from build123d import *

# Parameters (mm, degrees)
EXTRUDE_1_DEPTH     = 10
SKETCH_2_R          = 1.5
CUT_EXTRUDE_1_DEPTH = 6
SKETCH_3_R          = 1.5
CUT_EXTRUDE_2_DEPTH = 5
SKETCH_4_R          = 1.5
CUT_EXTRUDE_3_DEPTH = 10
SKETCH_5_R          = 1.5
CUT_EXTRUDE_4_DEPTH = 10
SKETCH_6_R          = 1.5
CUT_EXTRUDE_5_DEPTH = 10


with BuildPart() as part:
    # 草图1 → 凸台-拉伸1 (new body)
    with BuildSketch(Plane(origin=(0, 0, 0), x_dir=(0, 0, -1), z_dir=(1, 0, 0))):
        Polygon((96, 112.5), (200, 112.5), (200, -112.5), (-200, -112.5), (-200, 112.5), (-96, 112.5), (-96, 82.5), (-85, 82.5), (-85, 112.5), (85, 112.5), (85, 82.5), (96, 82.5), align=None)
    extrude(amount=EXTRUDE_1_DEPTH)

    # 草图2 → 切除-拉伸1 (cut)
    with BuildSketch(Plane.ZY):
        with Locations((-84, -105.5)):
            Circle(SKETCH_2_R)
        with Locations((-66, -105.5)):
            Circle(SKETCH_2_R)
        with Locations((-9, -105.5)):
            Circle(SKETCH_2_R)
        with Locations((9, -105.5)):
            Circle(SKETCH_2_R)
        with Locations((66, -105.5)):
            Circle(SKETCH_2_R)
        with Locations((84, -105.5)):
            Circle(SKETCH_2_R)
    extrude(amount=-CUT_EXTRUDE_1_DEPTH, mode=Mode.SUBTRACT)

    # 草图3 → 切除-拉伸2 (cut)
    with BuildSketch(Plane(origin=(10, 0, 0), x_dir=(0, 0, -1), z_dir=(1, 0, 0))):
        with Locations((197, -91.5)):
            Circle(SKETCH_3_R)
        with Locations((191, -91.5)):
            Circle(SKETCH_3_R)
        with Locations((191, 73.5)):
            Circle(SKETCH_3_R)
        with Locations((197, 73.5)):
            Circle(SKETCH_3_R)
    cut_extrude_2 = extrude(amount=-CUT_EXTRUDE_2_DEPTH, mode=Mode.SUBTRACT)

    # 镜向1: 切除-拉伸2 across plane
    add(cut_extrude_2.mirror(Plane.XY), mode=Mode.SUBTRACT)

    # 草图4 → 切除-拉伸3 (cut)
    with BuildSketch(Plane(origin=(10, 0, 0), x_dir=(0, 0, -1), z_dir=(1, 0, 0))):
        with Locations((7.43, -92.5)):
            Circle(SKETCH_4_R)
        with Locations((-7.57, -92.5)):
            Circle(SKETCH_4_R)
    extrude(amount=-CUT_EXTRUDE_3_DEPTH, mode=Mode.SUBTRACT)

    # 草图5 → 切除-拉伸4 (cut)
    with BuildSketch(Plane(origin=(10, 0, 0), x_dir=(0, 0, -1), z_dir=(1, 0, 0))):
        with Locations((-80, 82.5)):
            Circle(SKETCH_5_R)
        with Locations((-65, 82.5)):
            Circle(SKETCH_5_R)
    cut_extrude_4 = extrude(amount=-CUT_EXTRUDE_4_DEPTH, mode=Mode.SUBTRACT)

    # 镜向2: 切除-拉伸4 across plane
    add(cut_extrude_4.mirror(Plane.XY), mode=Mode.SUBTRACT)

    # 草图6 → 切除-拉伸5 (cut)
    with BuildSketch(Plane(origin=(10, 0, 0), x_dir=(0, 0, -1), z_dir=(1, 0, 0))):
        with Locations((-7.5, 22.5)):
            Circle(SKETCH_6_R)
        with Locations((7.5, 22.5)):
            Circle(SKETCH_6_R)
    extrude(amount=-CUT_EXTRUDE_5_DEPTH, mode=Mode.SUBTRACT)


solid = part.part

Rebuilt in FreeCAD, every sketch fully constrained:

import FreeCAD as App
import Part
import Sketcher
Q = App.Units.Quantity


def add_polygon(sketch, points):
    """Adds a closed chain of lines whose ends are joined by coincident constraints."""
    first, n = sketch.GeometryCount, len(points)
    for a, b in zip(points, points[1:] + points[:1]):
        sketch.addGeometry(Part.LineSegment(App.Vector(*a, 0), App.Vector(*b, 0)), False)
    for i in range(n):
        sketch.addConstraint(Sketcher.Constraint("Coincident", first + i, 2, first + (i + 1) % n, 1))

doc = App.newDocument("Part")
params = doc.addObject("Spreadsheet::Sheet", "Params")
for row, (alias, value) in enumerate([
    ("sketch1_width", "30 mm"),
    ("sketch1_width2", "225 mm"),
    ("sketch1_height", "104 mm"),
    ("sketch1_height2", "11 mm"),
    ("sketch1_height3", "170 mm"),
    ("pad1_length", "10 mm"),
    ("sketch2_diameter", "3 mm"),
    ("pocket1_length", "6 mm"),
    ("sketch3_diameter", "3 mm"),
    ("pocket2_length", "5 mm"),
    ("sketch4_diameter", "3 mm"),
    ("pocket3_length", "10 mm"),
    ("sketch5_diameter", "3 mm"),
    ("pocket4_length", "10 mm"),
    ("sketch6_diameter", "3 mm"),
    ("pocket5_length", "10 mm"),
], start=1):
    params.set(f"A{row}", alias)
    params.set(f"B{row}", "=" + value)
    params.setAlias(f"B{row}", alias)

body = doc.addObject("PartDesign::Body", "Body")

# Sketch on YZ plane
sketch1 = body.newObject("Sketcher::SketchObject", "Sketch")
sketch1.AttachmentSupport = (doc.getObject("YZ_Plane"), [""])
sketch1.MapMode = "FlatFace"
add_polygon(sketch1, [(112, -200), (112, -96), (82, -96), (82, -85), (112, -85), (112, 85), (82, 85), (82, 96), (112, 96), (112, 200), (-112, 200), (-112, -200)])  # lines 0-11
sketch1.addConstraint(Sketcher.Constraint("Vertical", 0))
sketch1.addConstraint(Sketcher.Constraint("Horizontal", 1))
sketch1.addConstraint(Sketcher.Constraint("Vertical", 2))
sketch1.addConstraint(Sketcher.Constraint("Horizontal", 3))
sketch1.addConstraint(Sketcher.Constraint("Vertical", 4))
sketch1.addConstraint(Sketcher.Constraint("Horizontal", 5))
sketch1.addConstraint(Sketcher.Constraint("Vertical", 6))
sketch1.addConstraint(Sketcher.Constraint("Horizontal", 7))
sketch1.addConstraint(Sketcher.Constraint("Vertical", 8))
sketch1.addConstraint(Sketcher.Constraint("Horizontal", 9))
sketch1.addConstraint(Sketcher.Constraint("Vertical", 10))
sketch1.addConstraint(Sketcher.Constraint("Horizontal", 11))
sketch1.addConstraint(Sketcher.Constraint("Symmetric", 8, 2, 10, 2, -1, 1))
sketch1.addConstraint(Sketcher.Constraint("Symmetric", 2, 2, 5, 2, -1))
sketch1.addConstraint(Sketcher.Constraint("Symmetric", 0, 2, 7, 2, -1))
sketch1.addConstraint(Sketcher.Constraint("Vertical", 0, 2, 3, 2))
sketch1.addConstraint(Sketcher.Constraint("DistanceX", 1, 2, 1, 1, Q("30 mm")))
sketch1.addConstraint(Sketcher.Constraint("DistanceX", 9, 2, 9, 1, Q("225 mm")))
sketch1.addConstraint(Sketcher.Constraint("DistanceY", 0, 1, 0, 2, Q("104 mm")))
sketch1.addConstraint(Sketcher.Constraint("DistanceY", 2, 1, 2, 2, Q("11 mm")))
sketch1.addConstraint(Sketcher.Constraint("DistanceY", 4, 1, 4, 2, Q("170 mm")))
sketch1.setExpression("Constraints[28]", "Params.sketch1_width")
sketch1.setExpression("Constraints[29]", "Params.sketch1_width2")
sketch1.setExpression("Constraints[30]", "Params.sketch1_height")
sketch1.setExpression("Constraints[31]", "Params.sketch1_height2")
sketch1.setExpression("Constraints[32]", "Params.sketch1_height3")
pad1 = body.newObject("PartDesign::Pad", "Pad")
pad1.Profile = sketch1
pad1.setExpression("Length", "Params.pad1_length")

# Sketch on YZ plane
sketch2 = body.newObject("Sketcher::SketchObject", "Sketch001")
sketch2.AttachmentSupport = (doc.getObject("YZ_Plane"), [""])
sketch2.MapMode = "FlatFace"
sketch2.addGeometry(Part.Circle(App.Vector(-105.5, -84, 0), App.Vector(0, 0, 1), 1.5), False)
sketch2.addGeometry(Part.Circle(App.Vector(-105.5, -66, 0), App.Vector(0, 0, 1), 1.5), False)
sketch2.addGeometry(Part.Circle(App.Vector(-105.5, -9, 0), App.Vector(0, 0, 1), 1.5), False)
sketch2.addGeometry(Part.Circle(App.Vector(-105.5, 9, 0), App.Vector(0, 0, 1), 1.5), False)
sketch2.addGeometry(Part.Circle(App.Vector(-105.5, 66, 0), App.Vector(0, 0, 1), 1.5), False)
sketch2.addGeometry(Part.Circle(App.Vector(-105.5, 84, 0), App.Vector(0, 0, 1), 1.5), False)
sketch2.addConstraint(Sketcher.Constraint("Equal", 0, 1))
sketch2.addConstraint(Sketcher.Constraint("Equal", 1, 2))
sketch2.addConstraint(Sketcher.Constraint("Equal", 2, 3))
sketch2.addConstraint(Sketcher.Constraint("Equal", 3, 4))
sketch2.addConstraint(Sketcher.Constraint("Equal", 4, 5))
sketch2.addConstraint(Sketcher.Constraint("Symmetric", 2, 3, 3, 3, -1))
sketch2.addConstraint(Sketcher.Constraint("Symmetric", 1, 3, 4, 3, -1))
sketch2.addConstraint(Sketcher.Constraint("Symmetric", 0, 3, 5, 3, -1))
sketch2.addConstraint(Sketcher.Constraint("Vertical", 0, 3, 1, 3))
sketch2.addConstraint(Sketcher.Constraint("Vertical", 1, 3, 2, 3))
sketch2.addConstraint(Sketcher.Constraint("Diameter", 0, Q("3 mm")))
sketch2.addConstraint(Sketcher.Constraint("DistanceY", 0, 3, -1, 1, Q("84 mm")))
sketch2.addConstraint(Sketcher.Constraint("DistanceY", 1, 3, -1, 1, Q("66 mm")))
sketch2.addConstraint(Sketcher.Constraint("DistanceY", 2, 3, -1, 1, Q("9 mm")))
sketch2.addConstraint(Sketcher.Constraint("DistanceX", 0, 3, -1, 1, Q("105.5 mm")))
sketch2.setExpression("Constraints[10]", "Params.sketch2_diameter")
pocket1 = body.newObject("PartDesign::Pocket", "Pocket")
pocket1.Profile = sketch2
pocket1.setExpression("Length", "Params.pocket1_length")
pocket1.Reversed = True

# Sketch on YZ plane
sketch3 = body.newObject("Sketcher::SketchObject", "Sketch002")
sketch3.AttachmentSupport = (doc.getObject("YZ_Plane"), [""])
sketch3.MapMode = "FlatFace"
sketch3.AttachmentOffset = App.Placement(App.Vector(0, 0, 10), App.Rotation())
sketch3.addGeometry(Part.Circle(App.Vector(-91.5, -197, 0), App.Vector(0, 0, 1), 1.5), False)
sketch3.addGeometry(Part.Circle(App.Vector(-91.5, -191, 0), App.Vector(0, 0, 1), 1.5), False)
sketch3.addGeometry(Part.Circle(App.Vector(73.5, -191, 0), App.Vector(0, 0, 1), 1.5), False)
sketch3.addGeometry(Part.Circle(App.Vector(73.5, -197, 0), App.Vector(0, 0, 1), 1.5), False)
sketch3.addConstraint(Sketcher.Constraint("Equal", 0, 1))
sketch3.addConstraint(Sketcher.Constraint("Equal", 1, 2))
sketch3.addConstraint(Sketcher.Constraint("Equal", 2, 3))
sketch3.addConstraint(Sketcher.Constraint("Horizontal", 1, 3, 2, 3))
sketch3.addConstraint(Sketcher.Constraint("Horizontal", 0, 3, 3, 3))
sketch3.addConstraint(Sketcher.Constraint("Vertical", 0, 3, 1, 3))
sketch3.addConstraint(Sketcher.Constraint("Vertical", 2, 3, 3, 3))
sketch3.addConstraint(Sketcher.Constraint("Diameter", 0, Q("3 mm")))
sketch3.addConstraint(Sketcher.Constraint("DistanceY", 0, 3, -1, 1, Q("197 mm")))
sketch3.addConstraint(Sketcher.Constraint("DistanceY", 1, 3, -1, 1, Q("191 mm")))
sketch3.addConstraint(Sketcher.Constraint("DistanceX", 1, 3, 2, 3, Q("165 mm")))
sketch3.addConstraint(Sketcher.Constraint("DistanceX", 0, 3, -1, 1, Q("91.5 mm")))
sketch3.setExpression("Constraints[7]", "Params.sketch3_diameter")
pocket2 = body.newObject("PartDesign::Pocket", "Pocket001")
pocket2.Profile = sketch3
pocket2.setExpression("Length", "Params.pocket2_length")
doc.recompute()

mirrored = body.newObject("PartDesign::Mirrored", "Mirrored")
mirrored.Originals = [pocket2]
mirrored.MirrorPlane = (doc.getObject("XY_Plane"), [""])
body.Tip = mirrored

# Sketch on YZ plane
sketch4 = body.newObject("Sketcher::SketchObject", "Sketch003")
sketch4.AttachmentSupport = (doc.getObject("YZ_Plane"), [""])
sketch4.MapMode = "FlatFace"
sketch4.AttachmentOffset = App.Placement(App.Vector(0, 0, 10), App.Rotation())
sketch4.addGeometry(Part.Circle(App.Vector(-92.5, -7.4, 0), App.Vector(0, 0, 1), 1.5), False)
sketch4.addGeometry(Part.Circle(App.Vector(-92.5, 7.6, 0), App.Vector(0, 0, 1), 1.5), False)
sketch4.addConstraint(Sketcher.Constraint("Equal", 0, 1))
sketch4.addConstraint(Sketcher.Constraint("Vertical", 0, 3, 1, 3))
sketch4.addConstraint(Sketcher.Constraint("Diameter", 0, Q("3 mm")))
sketch4.addConstraint(Sketcher.Constraint("DistanceY", 0, 3, 1, 3, Q("15 mm")))
sketch4.addConstraint(Sketcher.Constraint("DistanceX", 0, 3, -1, 1, Q("92.5 mm")))
sketch4.addConstraint(Sketcher.Constraint("DistanceY", 0, 3, -1, 1, Q("7.43 mm")))
sketch4.setExpression("Constraints[2]", "Params.sketch4_diameter")
pocket3 = body.newObject("PartDesign::Pocket", "Pocket002")
pocket3.Profile = sketch4
pocket3.setExpression("Length", "Params.pocket3_length")

# Sketch on YZ plane
sketch5 = body.newObject("Sketcher::SketchObject", "Sketch004")
sketch5.AttachmentSupport = (doc.getObject("YZ_Plane"), [""])
sketch5.MapMode = "FlatFace"
sketch5.AttachmentOffset = App.Placement(App.Vector(0, 0, 10), App.Rotation())
sketch5.addGeometry(Part.Circle(App.Vector(82.5, 80, 0), App.Vector(0, 0, 1), 1.5), False)
sketch5.addGeometry(Part.Circle(App.Vector(82.5, 65, 0), App.Vector(0, 0, 1), 1.5), False)
sketch5.addConstraint(Sketcher.Constraint("Equal", 0, 1))
sketch5.addConstraint(Sketcher.Constraint("Vertical", 0, 3, 1, 3))
sketch5.addConstraint(Sketcher.Constraint("Diameter", 0, Q("3 mm")))
sketch5.addConstraint(Sketcher.Constraint("DistanceY", -1, 1, 0, 3, Q("80 mm")))
sketch5.addConstraint(Sketcher.Constraint("DistanceY", -1, 1, 1, 3, Q("65 mm")))
sketch5.addConstraint(Sketcher.Constraint("DistanceX", -1, 1, 0, 3, Q("82.5 mm")))
sketch5.setExpression("Constraints[2]", "Params.sketch5_diameter")
pocket4 = body.newObject("PartDesign::Pocket", "Pocket003")
pocket4.Profile = sketch5
pocket4.setExpression("Length", "Params.pocket4_length")
doc.recompute()

mirrored2 = body.newObject("PartDesign::Mirrored", "Mirrored001")
mirrored2.Originals = [pocket4]
mirrored2.MirrorPlane = (doc.getObject("XY_Plane"), [""])
body.Tip = mirrored2

# Sketch on YZ plane
sketch6 = body.newObject("Sketcher::SketchObject", "Sketch005")
sketch6.AttachmentSupport = (doc.getObject("YZ_Plane"), [""])
sketch6.MapMode = "FlatFace"
sketch6.AttachmentOffset = App.Placement(App.Vector(0, 0, 10), App.Rotation())
sketch6.addGeometry(Part.Circle(App.Vector(22.5, 7.5, 0), App.Vector(0, 0, 1), 1.5), False)
sketch6.addGeometry(Part.Circle(App.Vector(22.5, -7.5, 0), App.Vector(0, 0, 1), 1.5), False)
sketch6.addConstraint(Sketcher.Constraint("Equal", 0, 1))
sketch6.addConstraint(Sketcher.Constraint("Symmetric", 0, 3, 1, 3, -1))
sketch6.addConstraint(Sketcher.Constraint("Diameter", 0, Q("3 mm")))
sketch6.addConstraint(Sketcher.Constraint("DistanceY", 1, 3, 0, 3, Q("15 mm")))
sketch6.addConstraint(Sketcher.Constraint("DistanceX", -1, 1, 0, 3, Q("22.5 mm")))
sketch6.setExpression("Constraints[2]", "Params.sketch6_diameter")
pocket5 = body.newObject("PartDesign::Pocket", "Pocket004")
pocket5.Profile = sketch6
pocket5.setExpression("Length", "Params.pocket5_length")

doc.recompute()
